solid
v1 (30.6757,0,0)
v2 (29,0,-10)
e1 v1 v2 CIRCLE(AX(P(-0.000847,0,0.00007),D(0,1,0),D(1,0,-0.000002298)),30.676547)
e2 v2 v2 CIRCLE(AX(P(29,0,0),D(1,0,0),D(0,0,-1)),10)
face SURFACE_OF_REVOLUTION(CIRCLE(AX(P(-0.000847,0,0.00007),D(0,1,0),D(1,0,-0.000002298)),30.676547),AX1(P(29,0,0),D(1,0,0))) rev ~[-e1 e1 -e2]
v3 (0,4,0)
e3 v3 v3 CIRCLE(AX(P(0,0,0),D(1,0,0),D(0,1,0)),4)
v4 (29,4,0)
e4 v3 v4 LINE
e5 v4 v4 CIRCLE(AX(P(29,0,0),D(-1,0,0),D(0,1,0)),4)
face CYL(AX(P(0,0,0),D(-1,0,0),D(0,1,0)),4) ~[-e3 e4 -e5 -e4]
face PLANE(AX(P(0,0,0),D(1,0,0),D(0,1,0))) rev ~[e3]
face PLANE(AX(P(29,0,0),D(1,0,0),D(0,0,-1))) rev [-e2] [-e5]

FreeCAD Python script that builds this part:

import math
import FreeCAD as App
import Part
import Sketcher
from FreeCAD import Vector

doc = App.newDocument("Part")
body = doc.addObject("PartDesign::Body", "Body")

# Sketch on YZ plane
sketch1 = body.newObject("Sketcher::SketchObject", "Sketch")
sketch1.AttachmentSupport = (doc.getObject("YZ_Plane"), [""])
sketch1.MapMode = "FlatFace"
sketch1.addGeometry(Part.Circle(Vector(0, 0, 0), Vector(0, 0, 1), 4), False)
sketch1.addConstraint([
    Sketcher.Constraint("Coincident", 0, 3, -1, 1),
    Sketcher.Constraint("Diameter", 0, 8.0),
])
pad1 = body.newObject("PartDesign::Pad", "Pad")
pad1.Profile = sketch1
pad1.Length = 29

# Sketch on XZ plane
sketch2 = body.newObject("Sketcher::SketchObject", "Sketch001")
sketch2.AttachmentSupport = (doc.getObject("XZ_Plane"), [""])
sketch2.MapMode = "FlatFace"
sketch2.addGeometry([
    Part.LineSegment(Vector(29, -10, 0), Vector(29, 0, 0)),
    Part.LineSegment(Vector(29, 0, 0), Vector(30.7, 0, 0)),
    Part.ArcOfCircle(Part.Circle(Vector(0, 0, 0), Vector(0, 0, 1), 30.7), math.radians(-19.03), math.radians(0)),
], False)
sketch2.addConstraint([
    Sketcher.Constraint("Coincident", 0, 2, 1, 1),
    Sketcher.Constraint("Coincident", 1, 2, 2, 2),
    Sketcher.Constraint("Coincident", 2, 1, 0, 1),
    Sketcher.Constraint("Vertical", 0),
    Sketcher.Constraint("Horizontal", 1),
    Sketcher.Constraint("Coincident", 2, 3, -1, 1),
    Sketcher.Constraint("PointOnObject", 0, 2, -1),
    Sketcher.Constraint("DistanceY", 0, 1, 0, 2, 10.0),
    Sketcher.Constraint("DistanceX", -1, 1, 0, 2, 29.0),
])
revolution = body.newObject("PartDesign::Revolution", "Revolution")
revolution.Profile = sketch2
revolution.ReferenceAxis = (sketch2, ["H_Axis"])
revolution.Angle = 360

doc.recompute()
